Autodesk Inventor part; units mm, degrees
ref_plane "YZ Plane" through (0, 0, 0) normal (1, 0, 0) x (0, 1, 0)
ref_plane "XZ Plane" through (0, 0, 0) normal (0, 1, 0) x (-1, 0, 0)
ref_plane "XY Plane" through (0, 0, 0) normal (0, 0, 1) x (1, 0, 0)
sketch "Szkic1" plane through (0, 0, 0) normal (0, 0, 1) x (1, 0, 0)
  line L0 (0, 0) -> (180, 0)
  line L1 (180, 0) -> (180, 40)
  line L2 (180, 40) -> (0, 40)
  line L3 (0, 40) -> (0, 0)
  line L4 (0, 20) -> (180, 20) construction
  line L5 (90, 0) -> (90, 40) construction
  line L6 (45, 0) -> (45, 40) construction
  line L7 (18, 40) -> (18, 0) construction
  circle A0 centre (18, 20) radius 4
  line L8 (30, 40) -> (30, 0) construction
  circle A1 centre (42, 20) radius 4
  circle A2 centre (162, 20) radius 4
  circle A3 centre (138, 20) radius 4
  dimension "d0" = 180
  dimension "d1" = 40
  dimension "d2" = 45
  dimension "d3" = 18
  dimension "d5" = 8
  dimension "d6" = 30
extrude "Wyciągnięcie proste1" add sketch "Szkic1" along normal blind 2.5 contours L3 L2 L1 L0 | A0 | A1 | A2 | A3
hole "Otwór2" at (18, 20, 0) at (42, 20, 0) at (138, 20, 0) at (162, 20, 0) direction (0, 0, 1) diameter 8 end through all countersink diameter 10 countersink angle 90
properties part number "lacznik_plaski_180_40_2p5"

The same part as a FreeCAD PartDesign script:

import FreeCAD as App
import Part
import Sketcher

V = App.Vector
Q = App.Units.Quantity


def add_polygon(sketch, points):
    """Adds a closed chain of lines whose ends are joined by coincident constraints."""
    first, n = sketch.GeometryCount, len(points)
    for a, b in zip(points, points[1:] + points[:1]):
        sketch.addGeometry(Part.LineSegment(App.Vector(*a, 0), App.Vector(*b, 0)), False)
    for i in range(n):
        sketch.addConstraint(Sketcher.Constraint("Coincident", first + i, 2, first + (i + 1) % n, 1))

doc = App.newDocument("Part")
params = doc.addObject("Spreadsheet::Sheet", "Params")
for row, (alias, value) in enumerate([
    ("sketch1_width", "180 mm"),
    ("sketch1_height", "40 mm"),
    ("pad1_length", "2.5 mm"),
    ("sketch2_diameter", "8 mm"),
    ("hole_diameter", "8 mm"),
    ("hole_csink_diameter", "10 mm"),
], start=1):
    params.set(f"A{row}", alias)
    params.set(f"B{row}", "=" + value)
    params.setAlias(f"B{row}", alias)

body = doc.addObject("PartDesign::Body", "Body")

sketch1 = body.newObject("Sketcher::SketchObject", "Sketch")
sketch1.AttachmentSupport = (doc.getObject("XY_Plane"), [""])
sketch1.MapMode = "FlatFace"
add_polygon(sketch1, [(0, 40), (0, 0), (180, 0), (180, 40)])
sketch1.addConstraint(Sketcher.Constraint("Vertical", 0))
sketch1.addConstraint(Sketcher.Constraint("Horizontal", 1))
sketch1.addConstraint(Sketcher.Constraint("Vertical", 2))
sketch1.addConstraint(Sketcher.Constraint("Horizontal", 3))
sketch1.addConstraint(Sketcher.Constraint("Coincident", 0, 2, -1, 1))
sketch1.addConstraint(Sketcher.Constraint("DistanceX", 1, 1, 1, 2, Q("180 mm")))
sketch1.addConstraint(Sketcher.Constraint("DistanceY", 0, 2, 0, 1, Q("40 mm")))
sketch1.setExpression("Constraints[9]", "Params.sketch1_width")
sketch1.setExpression("Constraints[10]", "Params.sketch1_height")
pad1 = body.newObject("PartDesign::Pad", "Pad")
pad1.Profile = sketch1
pad1.setExpression("Length", "Params.pad1_length")

sketch2 = body.newObject("Sketcher::SketchObject", "Sketch001")
sketch2.AttachmentSupport = (doc.getObject("XY_Plane"), [""])
sketch2.MapMode = "FlatFace"
sketch2.addGeometry(Part.Circle(V(18, 20, 0), V(0, 0, 1), 4), False)
sketch2.addGeometry(Part.Circle(V(42, 20, 0), V(0, 0, 1), 4), False)
sketch2.addGeometry(Part.Circle(V(138, 20, 0), V(0, 0, 1), 4), False)
sketch2.addGeometry(Part.Circle(V(162, 20, 0), V(0, 0, 1), 4), False)
sketch2.addConstraint(Sketcher.Constraint("Equal", 0, 1))
sketch2.addConstraint(Sketcher.Constraint("Equal", 1, 2))
sketch2.addConstraint(Sketcher.Constraint("Equal", 2, 3))
sketch2.addConstraint(Sketcher.Constraint("Horizontal", 0, 3, 1, 3))
sketch2.addConstraint(Sketcher.Constraint("Horizontal", 1, 3, 2, 3))
sketch2.addConstraint(Sketcher.Constraint("Horizontal", 2, 3, 3, 3))
sketch2.addConstraint(Sketcher.Constraint("Diameter", 0, Q("8 mm")))
sketch2.addConstraint(Sketcher.Constraint("DistanceX", -1, 1, 0, 3, Q("18 mm")))
sketch2.addConstraint(Sketcher.Constraint("DistanceY", -1, 1, 0, 3, Q("20 mm")))
sketch2.addConstraint(Sketcher.Constraint("DistanceX", -1, 1, 1, 3, Q("42 mm")))
sketch2.addConstraint(Sketcher.Constraint("DistanceX", -1, 1, 2, 3, Q("138 mm")))
sketch2.addConstraint(Sketcher.Constraint("DistanceX", -1, 1, 3, 3, Q("162 mm")))
sketch2.setExpression("Constraints[6]", "Params.sketch2_diameter")
doc.recompute()
hole = body.newObject("PartDesign::Hole", "Hole")
hole.Profile = sketch2
hole.ThreadType = "None"
hole.setExpression("Diameter", "Params.hole_diameter")
hole.DepthType = "ThroughAll"
hole.HoleCutType = "Countersink"
hole.setExpression("HoleCutDiameter", "Params.hole_csink_diameter")
hole.HoleCutCountersinkAngle = 90
hole.Reversed = True

doc.recompute()
